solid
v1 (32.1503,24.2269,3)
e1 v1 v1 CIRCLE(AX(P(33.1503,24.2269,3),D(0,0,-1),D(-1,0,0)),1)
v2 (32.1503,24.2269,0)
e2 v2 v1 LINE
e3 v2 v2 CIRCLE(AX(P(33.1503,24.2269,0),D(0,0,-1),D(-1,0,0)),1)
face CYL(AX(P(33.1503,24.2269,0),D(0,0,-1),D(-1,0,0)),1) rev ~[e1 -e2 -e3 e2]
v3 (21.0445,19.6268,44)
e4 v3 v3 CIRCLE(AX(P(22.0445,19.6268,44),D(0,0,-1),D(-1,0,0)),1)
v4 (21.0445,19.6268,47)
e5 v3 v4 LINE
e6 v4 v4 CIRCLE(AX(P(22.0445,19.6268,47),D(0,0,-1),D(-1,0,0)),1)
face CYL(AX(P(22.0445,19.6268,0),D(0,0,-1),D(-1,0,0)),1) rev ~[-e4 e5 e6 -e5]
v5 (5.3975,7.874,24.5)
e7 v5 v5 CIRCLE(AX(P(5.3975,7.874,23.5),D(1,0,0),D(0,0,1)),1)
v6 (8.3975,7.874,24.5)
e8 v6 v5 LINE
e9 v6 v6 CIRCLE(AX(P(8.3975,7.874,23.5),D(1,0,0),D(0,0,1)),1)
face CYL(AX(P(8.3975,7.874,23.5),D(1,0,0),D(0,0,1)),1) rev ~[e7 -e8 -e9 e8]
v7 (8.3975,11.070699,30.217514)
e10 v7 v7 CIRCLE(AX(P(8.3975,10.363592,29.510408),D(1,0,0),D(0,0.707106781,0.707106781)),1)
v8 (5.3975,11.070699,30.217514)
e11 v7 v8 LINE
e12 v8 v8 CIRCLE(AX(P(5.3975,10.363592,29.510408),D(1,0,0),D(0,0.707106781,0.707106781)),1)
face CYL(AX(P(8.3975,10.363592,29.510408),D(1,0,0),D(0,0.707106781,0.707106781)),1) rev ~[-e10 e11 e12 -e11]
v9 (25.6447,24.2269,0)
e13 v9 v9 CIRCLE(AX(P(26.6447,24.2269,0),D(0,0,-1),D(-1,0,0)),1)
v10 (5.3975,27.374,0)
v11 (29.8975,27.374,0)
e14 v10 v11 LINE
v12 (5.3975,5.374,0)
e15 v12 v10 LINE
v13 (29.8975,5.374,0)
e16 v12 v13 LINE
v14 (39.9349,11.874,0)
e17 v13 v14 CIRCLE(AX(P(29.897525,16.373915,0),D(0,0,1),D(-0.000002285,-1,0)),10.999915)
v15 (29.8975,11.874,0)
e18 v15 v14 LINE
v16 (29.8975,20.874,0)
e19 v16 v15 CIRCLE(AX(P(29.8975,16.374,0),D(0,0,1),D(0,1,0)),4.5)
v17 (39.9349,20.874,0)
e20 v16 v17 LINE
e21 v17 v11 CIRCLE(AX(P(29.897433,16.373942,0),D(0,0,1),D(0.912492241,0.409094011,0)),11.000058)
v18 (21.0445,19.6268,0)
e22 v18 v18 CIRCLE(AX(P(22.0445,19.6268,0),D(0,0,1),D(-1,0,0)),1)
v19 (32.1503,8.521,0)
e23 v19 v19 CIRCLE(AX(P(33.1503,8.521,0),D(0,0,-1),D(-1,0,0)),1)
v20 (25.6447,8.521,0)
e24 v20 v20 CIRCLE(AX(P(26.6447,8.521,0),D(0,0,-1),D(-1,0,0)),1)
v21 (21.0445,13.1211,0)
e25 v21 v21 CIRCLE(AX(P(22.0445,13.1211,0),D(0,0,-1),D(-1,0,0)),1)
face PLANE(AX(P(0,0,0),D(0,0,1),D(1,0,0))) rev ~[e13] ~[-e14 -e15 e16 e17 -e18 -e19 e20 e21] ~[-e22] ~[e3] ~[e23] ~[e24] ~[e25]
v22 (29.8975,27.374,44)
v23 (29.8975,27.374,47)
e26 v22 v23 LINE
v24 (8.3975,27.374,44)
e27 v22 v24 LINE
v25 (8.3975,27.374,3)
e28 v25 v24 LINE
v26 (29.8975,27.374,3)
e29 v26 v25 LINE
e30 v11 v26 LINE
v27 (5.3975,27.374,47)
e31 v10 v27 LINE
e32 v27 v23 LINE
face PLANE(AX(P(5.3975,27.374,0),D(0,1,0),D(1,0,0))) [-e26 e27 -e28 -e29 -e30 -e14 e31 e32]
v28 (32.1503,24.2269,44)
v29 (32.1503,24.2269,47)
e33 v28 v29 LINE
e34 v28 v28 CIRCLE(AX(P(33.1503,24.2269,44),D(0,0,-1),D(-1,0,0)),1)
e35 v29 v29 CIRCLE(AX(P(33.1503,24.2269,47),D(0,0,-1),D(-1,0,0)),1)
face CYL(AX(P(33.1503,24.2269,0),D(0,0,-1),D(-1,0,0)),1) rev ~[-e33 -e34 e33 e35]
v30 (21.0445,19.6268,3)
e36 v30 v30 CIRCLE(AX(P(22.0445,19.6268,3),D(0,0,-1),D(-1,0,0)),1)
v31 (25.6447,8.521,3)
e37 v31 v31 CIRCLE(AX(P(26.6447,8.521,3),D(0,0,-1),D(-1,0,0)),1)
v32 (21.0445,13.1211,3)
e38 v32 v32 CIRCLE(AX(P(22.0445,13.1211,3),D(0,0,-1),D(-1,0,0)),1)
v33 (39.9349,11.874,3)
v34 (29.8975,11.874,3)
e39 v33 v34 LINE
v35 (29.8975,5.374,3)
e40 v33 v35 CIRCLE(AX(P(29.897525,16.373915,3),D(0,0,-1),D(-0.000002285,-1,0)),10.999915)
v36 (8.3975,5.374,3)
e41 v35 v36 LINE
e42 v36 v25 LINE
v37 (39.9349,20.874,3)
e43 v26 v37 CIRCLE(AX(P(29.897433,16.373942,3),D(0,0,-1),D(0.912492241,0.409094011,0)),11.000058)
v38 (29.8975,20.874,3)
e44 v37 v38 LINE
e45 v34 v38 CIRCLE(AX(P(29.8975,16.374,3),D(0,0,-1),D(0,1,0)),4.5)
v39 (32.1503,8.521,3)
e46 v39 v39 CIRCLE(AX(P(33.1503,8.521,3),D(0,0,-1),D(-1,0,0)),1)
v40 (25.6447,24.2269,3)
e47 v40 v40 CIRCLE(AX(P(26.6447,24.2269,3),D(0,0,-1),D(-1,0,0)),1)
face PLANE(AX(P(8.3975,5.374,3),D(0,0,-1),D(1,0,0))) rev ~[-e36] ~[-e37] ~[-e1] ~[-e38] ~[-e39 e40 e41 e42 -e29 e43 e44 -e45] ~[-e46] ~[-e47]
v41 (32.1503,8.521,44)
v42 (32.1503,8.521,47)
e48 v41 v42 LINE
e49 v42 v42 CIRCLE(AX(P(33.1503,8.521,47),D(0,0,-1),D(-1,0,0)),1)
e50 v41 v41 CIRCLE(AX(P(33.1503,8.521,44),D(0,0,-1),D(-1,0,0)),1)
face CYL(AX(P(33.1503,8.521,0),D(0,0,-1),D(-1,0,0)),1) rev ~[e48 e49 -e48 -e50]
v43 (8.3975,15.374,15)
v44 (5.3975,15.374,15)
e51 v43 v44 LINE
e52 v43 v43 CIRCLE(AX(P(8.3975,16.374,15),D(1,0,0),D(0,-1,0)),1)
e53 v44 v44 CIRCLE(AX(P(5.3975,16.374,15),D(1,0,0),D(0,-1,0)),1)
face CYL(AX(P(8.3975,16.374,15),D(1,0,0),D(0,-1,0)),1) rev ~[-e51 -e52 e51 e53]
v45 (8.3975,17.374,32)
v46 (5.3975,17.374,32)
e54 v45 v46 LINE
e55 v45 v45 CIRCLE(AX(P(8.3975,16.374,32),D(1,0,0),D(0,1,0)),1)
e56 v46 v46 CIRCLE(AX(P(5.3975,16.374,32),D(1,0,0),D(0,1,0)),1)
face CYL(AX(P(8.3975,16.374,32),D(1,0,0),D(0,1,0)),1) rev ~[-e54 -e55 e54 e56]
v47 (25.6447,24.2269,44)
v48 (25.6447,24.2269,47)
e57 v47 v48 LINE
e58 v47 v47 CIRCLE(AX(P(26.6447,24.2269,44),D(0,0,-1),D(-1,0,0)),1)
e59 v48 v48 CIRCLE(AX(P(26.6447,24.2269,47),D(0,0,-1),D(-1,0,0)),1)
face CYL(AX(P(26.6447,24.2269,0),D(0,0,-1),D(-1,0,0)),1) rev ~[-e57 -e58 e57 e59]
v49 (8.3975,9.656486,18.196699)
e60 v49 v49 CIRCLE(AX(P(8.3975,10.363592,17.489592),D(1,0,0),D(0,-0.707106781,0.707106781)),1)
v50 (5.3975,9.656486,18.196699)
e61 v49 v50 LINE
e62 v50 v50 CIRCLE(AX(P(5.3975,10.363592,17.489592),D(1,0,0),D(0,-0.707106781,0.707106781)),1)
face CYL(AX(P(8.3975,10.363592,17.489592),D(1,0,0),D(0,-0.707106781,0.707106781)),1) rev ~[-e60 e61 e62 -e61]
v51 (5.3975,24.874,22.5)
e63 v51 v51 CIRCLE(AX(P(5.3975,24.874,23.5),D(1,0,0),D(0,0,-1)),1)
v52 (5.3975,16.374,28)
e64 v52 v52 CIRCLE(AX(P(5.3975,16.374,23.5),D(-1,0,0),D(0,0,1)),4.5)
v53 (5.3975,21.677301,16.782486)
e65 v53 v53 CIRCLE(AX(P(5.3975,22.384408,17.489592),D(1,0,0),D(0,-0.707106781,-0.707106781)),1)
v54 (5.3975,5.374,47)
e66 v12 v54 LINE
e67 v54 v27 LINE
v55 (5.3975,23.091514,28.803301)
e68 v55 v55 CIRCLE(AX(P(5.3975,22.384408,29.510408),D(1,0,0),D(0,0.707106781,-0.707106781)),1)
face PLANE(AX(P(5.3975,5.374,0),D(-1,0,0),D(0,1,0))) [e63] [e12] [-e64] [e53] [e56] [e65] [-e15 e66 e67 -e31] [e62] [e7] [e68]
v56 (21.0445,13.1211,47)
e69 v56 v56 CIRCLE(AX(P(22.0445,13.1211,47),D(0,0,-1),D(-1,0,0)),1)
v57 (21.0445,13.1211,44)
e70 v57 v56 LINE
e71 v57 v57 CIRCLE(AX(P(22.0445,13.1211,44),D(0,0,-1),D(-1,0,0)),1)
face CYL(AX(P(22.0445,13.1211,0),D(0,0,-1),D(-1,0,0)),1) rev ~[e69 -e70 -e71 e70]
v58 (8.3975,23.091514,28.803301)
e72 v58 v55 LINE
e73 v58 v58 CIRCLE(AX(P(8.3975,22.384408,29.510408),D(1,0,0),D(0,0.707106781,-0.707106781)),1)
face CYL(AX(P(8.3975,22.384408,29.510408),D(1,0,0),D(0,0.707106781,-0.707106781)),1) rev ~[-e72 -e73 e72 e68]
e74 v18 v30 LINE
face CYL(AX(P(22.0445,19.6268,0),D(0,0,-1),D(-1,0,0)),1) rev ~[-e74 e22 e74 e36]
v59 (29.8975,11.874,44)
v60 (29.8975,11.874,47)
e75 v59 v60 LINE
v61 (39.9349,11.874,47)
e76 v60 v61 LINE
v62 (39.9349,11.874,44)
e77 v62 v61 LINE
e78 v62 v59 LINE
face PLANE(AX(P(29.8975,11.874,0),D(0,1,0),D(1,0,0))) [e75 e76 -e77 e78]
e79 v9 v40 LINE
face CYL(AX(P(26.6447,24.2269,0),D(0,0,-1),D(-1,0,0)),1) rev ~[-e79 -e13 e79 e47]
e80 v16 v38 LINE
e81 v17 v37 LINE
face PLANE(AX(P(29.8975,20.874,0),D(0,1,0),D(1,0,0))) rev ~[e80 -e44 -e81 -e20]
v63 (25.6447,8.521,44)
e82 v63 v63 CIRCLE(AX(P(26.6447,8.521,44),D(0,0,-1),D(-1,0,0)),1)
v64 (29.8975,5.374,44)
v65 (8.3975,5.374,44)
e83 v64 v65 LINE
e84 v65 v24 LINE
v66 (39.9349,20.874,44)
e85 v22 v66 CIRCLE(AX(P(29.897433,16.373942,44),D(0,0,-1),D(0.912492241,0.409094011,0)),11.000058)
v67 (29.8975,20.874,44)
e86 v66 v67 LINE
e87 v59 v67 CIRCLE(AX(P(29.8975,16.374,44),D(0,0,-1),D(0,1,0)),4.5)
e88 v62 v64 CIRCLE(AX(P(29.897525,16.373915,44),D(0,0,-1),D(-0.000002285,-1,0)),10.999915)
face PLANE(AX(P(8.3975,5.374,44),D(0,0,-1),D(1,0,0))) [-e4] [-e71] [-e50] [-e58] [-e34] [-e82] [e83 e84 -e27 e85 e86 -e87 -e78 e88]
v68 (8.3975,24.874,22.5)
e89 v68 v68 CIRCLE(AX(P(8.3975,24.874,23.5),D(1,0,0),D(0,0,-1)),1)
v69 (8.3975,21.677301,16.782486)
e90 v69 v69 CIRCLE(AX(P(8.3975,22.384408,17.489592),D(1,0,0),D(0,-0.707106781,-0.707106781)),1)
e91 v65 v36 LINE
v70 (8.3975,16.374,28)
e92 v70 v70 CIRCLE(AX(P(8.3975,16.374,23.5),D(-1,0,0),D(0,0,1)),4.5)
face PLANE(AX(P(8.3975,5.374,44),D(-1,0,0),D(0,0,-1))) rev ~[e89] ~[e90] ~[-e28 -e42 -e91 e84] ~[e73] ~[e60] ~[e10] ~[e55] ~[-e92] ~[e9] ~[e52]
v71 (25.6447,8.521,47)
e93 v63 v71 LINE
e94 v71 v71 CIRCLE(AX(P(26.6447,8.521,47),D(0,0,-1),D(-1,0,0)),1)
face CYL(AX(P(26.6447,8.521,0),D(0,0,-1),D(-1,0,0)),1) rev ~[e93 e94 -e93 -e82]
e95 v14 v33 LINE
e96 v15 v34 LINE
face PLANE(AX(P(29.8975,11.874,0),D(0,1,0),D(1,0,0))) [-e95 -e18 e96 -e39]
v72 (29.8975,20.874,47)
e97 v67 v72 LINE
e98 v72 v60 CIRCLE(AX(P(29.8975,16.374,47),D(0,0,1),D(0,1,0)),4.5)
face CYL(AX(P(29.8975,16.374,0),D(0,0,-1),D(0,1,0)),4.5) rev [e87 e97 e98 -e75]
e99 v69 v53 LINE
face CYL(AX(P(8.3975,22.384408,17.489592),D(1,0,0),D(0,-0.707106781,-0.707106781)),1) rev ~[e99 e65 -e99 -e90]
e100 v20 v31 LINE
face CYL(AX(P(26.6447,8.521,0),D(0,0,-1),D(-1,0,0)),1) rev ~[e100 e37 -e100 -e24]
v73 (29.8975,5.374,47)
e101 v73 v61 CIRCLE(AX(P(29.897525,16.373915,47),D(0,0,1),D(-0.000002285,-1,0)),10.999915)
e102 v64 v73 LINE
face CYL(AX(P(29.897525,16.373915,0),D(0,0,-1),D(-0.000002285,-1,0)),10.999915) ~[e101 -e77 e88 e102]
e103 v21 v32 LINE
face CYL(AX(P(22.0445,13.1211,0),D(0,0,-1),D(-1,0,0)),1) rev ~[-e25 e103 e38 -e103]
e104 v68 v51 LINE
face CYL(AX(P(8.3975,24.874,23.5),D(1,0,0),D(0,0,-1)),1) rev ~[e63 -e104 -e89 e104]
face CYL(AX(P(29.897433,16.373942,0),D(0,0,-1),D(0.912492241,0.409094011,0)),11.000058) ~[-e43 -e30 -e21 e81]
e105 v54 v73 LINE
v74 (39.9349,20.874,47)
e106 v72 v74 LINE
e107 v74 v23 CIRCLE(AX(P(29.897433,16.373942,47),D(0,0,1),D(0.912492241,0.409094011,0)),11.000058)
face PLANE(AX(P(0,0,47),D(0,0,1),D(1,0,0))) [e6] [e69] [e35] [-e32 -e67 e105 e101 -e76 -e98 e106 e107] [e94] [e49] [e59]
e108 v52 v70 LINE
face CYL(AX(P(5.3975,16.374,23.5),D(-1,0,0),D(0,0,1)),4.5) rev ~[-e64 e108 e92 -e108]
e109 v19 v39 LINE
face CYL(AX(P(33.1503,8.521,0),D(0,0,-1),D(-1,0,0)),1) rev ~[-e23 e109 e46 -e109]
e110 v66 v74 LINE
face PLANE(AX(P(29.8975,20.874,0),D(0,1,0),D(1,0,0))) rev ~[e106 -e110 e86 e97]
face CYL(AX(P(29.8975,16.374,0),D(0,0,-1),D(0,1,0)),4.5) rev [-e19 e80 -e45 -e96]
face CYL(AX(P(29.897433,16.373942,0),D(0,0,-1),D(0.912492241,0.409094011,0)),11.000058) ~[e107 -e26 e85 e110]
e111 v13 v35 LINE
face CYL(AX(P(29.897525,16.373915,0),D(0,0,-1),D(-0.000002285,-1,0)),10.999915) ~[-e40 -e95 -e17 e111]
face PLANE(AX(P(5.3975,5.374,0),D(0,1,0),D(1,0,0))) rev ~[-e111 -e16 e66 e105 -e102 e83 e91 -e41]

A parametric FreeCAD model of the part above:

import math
import FreeCAD as App
import Part
import Sketcher

V = App.Vector
Q = App.Units.Quantity


def add_polygon(sketch, points):
    """Adds a closed chain of lines whose ends are joined by coincident constraints."""
    first, n = sketch.GeometryCount, len(points)
    for a, b in zip(points, points[1:] + points[:1]):
        sketch.addGeometry(Part.LineSegment(App.Vector(*a, 0), App.Vector(*b, 0)), False)
    for i in range(n):
        sketch.addConstraint(Sketcher.Constraint("Coincident", first + i, 2, first + (i + 1) % n, 1))

doc = App.newDocument("Part")
params = doc.addObject("Spreadsheet::Sheet", "Params")
for row, (alias, value) in enumerate([
    ("sketch1_radius", "4.5 mm"),
    ("sketch1_radius2", "11 mm"),
    ("sketch1_width", "24.5 mm"),
    ("pad1_length", "47 mm"),
    ("sketch2_height", "41 mm"),
    ("sketch3_diameter", "9 mm"),
    ("sketch4_diameter", "2 mm"),
    ("sketch5_diameter", "2 mm"),
], start=1):
    params.set(f"A{row}", alias)
    params.set(f"B{row}", "=" + value)
    params.setAlias(f"B{row}", alias)

body = doc.addObject("PartDesign::Body", "Body")

# Sketch on XY plane
sketch1 = body.newObject("Sketcher::SketchObject", "Sketch")
sketch1.AttachmentSupport = (doc.getObject("XY_Plane"), [""])
sketch1.MapMode = "FlatFace"
sketch1.addGeometry(Part.LineSegment(V(5.3975, 27.374, 0), V(5.3975, 5.374, 0)), False)
sketch1.addGeometry(Part.LineSegment(V(5.3975, 5.374, 0), V(29.8975, 5.374, 0)), False)
sketch1.addGeometry(Part.ArcOfCircle(Part.Circle(V(29.8975, 16.374, 0), V(0, 0, 1), 10.999973), math.radians(-90), math.radians(-24.147804)), False)
sketch1.addGeometry(Part.LineSegment(V(39.9349, 11.874, 0), V(29.8975, 11.874, 0)), False)
sketch1.addGeometry(Part.ArcOfCircle(Part.Circle(V(29.8975, 16.374, 0), V(0, 0, 1), 4.5), math.radians(90), math.radians(270)), False)
sketch1.addGeometry(Part.LineSegment(V(29.8975, 20.874, 0), V(39.9349, 20.874, 0)), False)
sketch1.addGeometry(Part.ArcOfCircle(Part.Circle(V(29.8975, 16.374, 0), V(0, 0, 1), 11), math.radians(24.147804), math.radians(90)), False)
sketch1.addGeometry(Part.LineSegment(V(29.8975, 27.374, 0), V(5.3975, 27.374, 0)), False)
sketch1.addConstraint(Sketcher.Constraint("Coincident", 0, 2, 1, 1))
sketch1.addConstraint(Sketcher.Constraint("Tangent", 1, 2, 2, 1))
sketch1.addConstraint(Sketcher.Constraint("Coincident", 2, 2, 3, 1))
sketch1.addConstraint(Sketcher.Constraint("Tangent", 3, 2, 4, 2))
sketch1.addConstraint(Sketcher.Constraint("Tangent", 4, 1, 5, 1))
sketch1.addConstraint(Sketcher.Constraint("Coincident", 5, 2, 6, 1))
sketch1.addConstraint(Sketcher.Constraint("Tangent", 6, 2, 7, 1))
sketch1.addConstraint(Sketcher.Constraint("Coincident", 7, 2, 0, 1))
sketch1.addConstraint(Sketcher.Constraint("Vertical", 0))
sketch1.addConstraint(Sketcher.Constraint("Horizontal", 1))
sketch1.addConstraint(Sketcher.Constraint("Horizontal", 3))
sketch1.addConstraint(Sketcher.Constraint("Horizontal", 5))
sketch1.addConstraint(Sketcher.Constraint("Horizontal", 7))
sketch1.addConstraint(Sketcher.Constraint("Coincident", 4, 3, 2, 3))
sketch1.addConstraint(Sketcher.Constraint("Coincident", 6, 3, 2, 3))
sketch1.addConstraint(Sketcher.Constraint("Equal", 2, 6))
sketch1.addConstraint(Sketcher.Constraint("Radius", 4, Q("4.5 mm")))
sketch1.addConstraint(Sketcher.Constraint("Radius", 2, Q("11 mm")))
sketch1.addConstraint(Sketcher.Constraint("DistanceX", 1, 1, 1, 2, Q("24.5 mm")))
sketch1.addConstraint(Sketcher.Constraint("DistanceY", -1, 1, 2, 3, Q("16.374 mm")))
sketch1.addConstraint(Sketcher.Constraint("DistanceX", -1, 1, 2, 2, Q("39.935 mm")))
sketch1.setExpression("Constraints[16]", "Params.sketch1_radius")
sketch1.setExpression("Constraints[17]", "Params.sketch1_radius2")
sketch1.setExpression("Constraints[18]", "Params.sketch1_width")
pad1 = body.newObject("PartDesign::Pad", "Pad")
pad1.Profile = sketch1
pad1.setExpression("Length", "Params.pad1_length")

# Sketch on XZ plane
sketch2 = body.newObject("Sketcher::SketchObject", "Sketch001")
sketch2.AttachmentSupport = (doc.getObject("XZ_Plane"), [""])
sketch2.MapMode = "FlatFace"
sketch2.AttachmentOffset = App.Placement(V(0, 0, -5.374), App.Rotation())
add_polygon(sketch2, [(8.3975, 3), (39.9349, 3), (39.9349, 44), (8.3975, 44)])  # lines 0-3
sketch2.addConstraint(Sketcher.Constraint("Horizontal", 0))
sketch2.addConstraint(Sketcher.Constraint("Vertical", 1))
sketch2.addConstraint(Sketcher.Constraint("Horizontal", 2))
sketch2.addConstraint(Sketcher.Constraint("Vertical", 3))
sketch2.addConstraint(Sketcher.Constraint("DistanceY", -1, 1, 0, 2, Q("3 mm")))
sketch2.addConstraint(Sketcher.Constraint("DistanceY", 1, 1, 1, 2, Q("41 mm")))
sketch2.addConstraint(Sketcher.Constraint("DistanceX", 0, 1, 0, 2, Q("31.5374 mm")))
sketch2.addConstraint(Sketcher.Constraint("DistanceX", -1, 1, 0, 2, Q("39.935 mm")))
sketch2.setExpression("Constraints[9]", "Params.sketch2_height")
pocket1 = body.newObject("PartDesign::Pocket", "Pocket")
pocket1.Profile = sketch2
pocket1.Type = "ThroughAll"

# Sketch on YZ plane
sketch3 = body.newObject("Sketcher::SketchObject", "Sketch002")
sketch3.AttachmentSupport = (doc.getObject("YZ_Plane"), [""])
sketch3.MapMode = "FlatFace"
sketch3.AttachmentOffset = App.Placement(V(0, 0, 5.3975), App.Rotation())
sketch3.addGeometry(Part.Circle(V(16.374, 23.5, 0), V(0, 0, 1), 4.5), False)
sketch3.addConstraint(Sketcher.Constraint("Diameter", 0, Q("9 mm")))
sketch3.addConstraint(Sketcher.Constraint("DistanceY", -1, 1, 0, 3, Q("23.5 mm")))
sketch3.addConstraint(Sketcher.Constraint("DistanceX", -1, 1, 0, 3, Q("16.374 mm")))
sketch3.setExpression("Constraints[0]", "Params.sketch3_diameter")
pocket2 = body.newObject("PartDesign::Pocket", "Pocket001")
pocket2.Profile = sketch3
pocket2.Type = "ThroughAll"
pocket2.Reversed = True

# Sketch on XY plane
sketch4 = body.newObject("Sketcher::SketchObject", "Sketch003")
sketch4.AttachmentSupport = (doc.getObject("XY_Plane"), [""])
sketch4.MapMode = "FlatFace"
sketch4.addGeometry(Part.Circle(V(22.0445, 19.6268, 0), V(0, 0, 1), 1), False)
sketch4.addGeometry(Part.Circle(V(26.6447, 24.2269, 0), V(0, 0, 1), 1), False)
sketch4.addGeometry(Part.Circle(V(33.1503, 24.2269, 0), V(0, 0, 1), 1), False)
sketch4.addGeometry(Part.Circle(V(33.1503, 8.521, 0), V(0, 0, 1), 1), False)
sketch4.addGeometry(Part.Circle(V(26.6447, 8.521, 0), V(0, 0, 1), 1), False)
sketch4.addGeometry(Part.Circle(V(22.0445, 13.1211, 0), V(0, 0, 1), 1), False)
sketch4.addConstraint(Sketcher.Constraint("Equal", 0, 1))
sketch4.addConstraint(Sketcher.Constraint("Equal", 1, 2))
sketch4.addConstraint(Sketcher.Constraint("Equal", 2, 3))
sketch4.addConstraint(Sketcher.Constraint("Equal", 3, 4))
sketch4.addConstraint(Sketcher.Constraint("Equal", 4, 5))
sketch4.addConstraint(Sketcher.Constraint("Horizontal", 1, 3, 2, 3))
sketch4.addConstraint(Sketcher.Constraint("Horizontal", 3, 3, 4, 3))
sketch4.addConstraint(Sketcher.Constraint("Vertical", 2, 3, 3, 3))
sketch4.addConstraint(Sketcher.Constraint("Vertical", 1, 3, 4, 3))
sketch4.addConstraint(Sketcher.Constraint("Vertical", 0, 3, 5, 3))
sketch4.addConstraint(Sketcher.Constraint("Diameter", 0, Q("2 mm")))
sketch4.addConstraint(Sketcher.Constraint("DistanceY", 0, 3, 1, 3, Q("4.6 mm")))
sketch4.addConstraint(Sketcher.Constraint("DistanceY", 4, 3, 5, 3, Q("4.6 mm")))
sketch4.addConstraint(Sketcher.Constraint("DistanceY", -1, 1, 1, 3, Q("24.227 mm")))
sketch4.addConstraint(Sketcher.Constraint("DistanceY", -1, 1, 3, 3, Q("8.521 mm")))
sketch4.addConstraint(Sketcher.Constraint("DistanceX", -1, 1, 0, 3, Q("22.0445 mm")))
sketch4.addConstraint(Sketcher.Constraint("DistanceX", -1, 1, 1, 3, Q("26.6447 mm")))
sketch4.addConstraint(Sketcher.Constraint("DistanceX", -1, 1, 2, 3, Q("33.1503 mm")))
sketch4.setExpression("Constraints[10]", "Params.sketch4_diameter")
pocket3 = body.newObject("PartDesign::Pocket", "Pocket002")
pocket3.Profile = sketch4
pocket3.Type = "ThroughAll"
pocket3.Reversed = True

# Sketch on YZ plane
sketch5 = body.newObject("Sketcher::SketchObject", "Sketch004")
sketch5.AttachmentSupport = (doc.getObject("YZ_Plane"), [""])
sketch5.MapMode = "FlatFace"
sketch5.AttachmentOffset = App.Placement(V(0, 0, 8.3975), App.Rotation())
sketch5.addGeometry(Part.Circle(V(24.874, 23.5, 0), V(0, 0, 1), 1), False)
sketch5.addConstraint(Sketcher.Constraint("Diameter", 0, Q("2 mm")))
sketch5.addConstraint(Sketcher.Constraint("DistanceY", -1, 1, 0, 3, Q("23.5 mm")))
sketch5.addConstraint(Sketcher.Constraint("DistanceX", -1, 1, 0, 3, Q("24.874 mm")))
sketch5.setExpression("Constraints[0]", "Params.sketch5_diameter")
pocket4 = body.newObject("PartDesign::Pocket", "Pocket003")
pocket4.Profile = sketch5
pocket4.Type = "ThroughAll"
doc.recompute()

datumline = body.newObject("PartDesign::Line", "DatumLine")
datumline.Placement = App.Placement(V(0, 16.374, 23.5), App.Rotation(V(0, 0, 1), V(1, 0, 0)))
polarpattern = body.newObject("PartDesign::PolarPattern", "PolarPattern")
polarpattern.Originals = [pocket4]
polarpattern.Axis = (datumline, [""])
polarpattern.Angle = 360
polarpattern.Occurrences = 8
body.Tip = polarpattern

doc.recompute()
